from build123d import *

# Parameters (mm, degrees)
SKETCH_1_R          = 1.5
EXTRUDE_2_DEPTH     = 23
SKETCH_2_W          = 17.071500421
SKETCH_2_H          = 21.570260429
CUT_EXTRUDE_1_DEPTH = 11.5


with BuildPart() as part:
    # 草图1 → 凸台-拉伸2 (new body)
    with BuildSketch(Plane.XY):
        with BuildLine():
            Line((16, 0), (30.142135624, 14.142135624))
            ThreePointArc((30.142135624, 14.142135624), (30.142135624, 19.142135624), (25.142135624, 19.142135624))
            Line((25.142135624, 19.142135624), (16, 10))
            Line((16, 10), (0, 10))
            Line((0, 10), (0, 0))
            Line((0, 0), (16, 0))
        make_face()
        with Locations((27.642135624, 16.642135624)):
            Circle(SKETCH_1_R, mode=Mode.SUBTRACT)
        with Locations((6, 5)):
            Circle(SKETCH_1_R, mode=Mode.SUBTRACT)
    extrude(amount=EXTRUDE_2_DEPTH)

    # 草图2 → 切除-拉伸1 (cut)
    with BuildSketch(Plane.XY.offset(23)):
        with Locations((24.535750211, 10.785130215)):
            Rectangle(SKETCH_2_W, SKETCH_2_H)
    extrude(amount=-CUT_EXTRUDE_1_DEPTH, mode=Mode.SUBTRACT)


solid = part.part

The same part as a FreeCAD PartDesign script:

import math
import FreeCAD as App
import Part
import Sketcher
from FreeCAD import Vector
Q = App.Units.Quantity


def add_polygon(sketch, points):
    """Adds a closed chain of lines whose ends are joined by coincident constraints."""
    first, n = sketch.GeometryCount, len(points)
    for a, b in zip(points, points[1:] + points[:1]):
        sketch.addGeometry(Part.LineSegment(App.Vector(*a, 0), App.Vector(*b, 0)), False)
    for i in range(n):
        sketch.addConstraint(Sketcher.Constraint("Coincident", first + i, 2, first + (i + 1) % n, 1))

doc = App.newDocument("Part")
body = doc.addObject("PartDesign::Body", "Body")

sketch1 = doc.addObject("Sketcher::SketchObject", "Sketch")
body.addObject(sketch1)
sketch1.AttachmentSupport = (doc.XY_Plane, [""])
sketch1.MapMode = "FlatFace"
sketch1.addGeometry([
    Part.LineSegment(Vector(16, 0, 0), Vector(30.1, 14.1, 0)),
    Part.ArcOfCircle(Part.Circle(Vector(27.6, 16.6, 0), Vector(0, 0, 1), 3.5), math.radians(-45), math.radians(135)),
    Part.LineSegment(Vector(25.1, 19.1, 0), Vector(16, 10, 0)),
    Part.LineSegment(Vector(16, 10, 0), Vector(0, 10, 0)),
    Part.LineSegment(Vector(0, 10, 0), Vector(0, 0, 0)),
    Part.LineSegment(Vector(0, 0, 0), Vector(16, 0, 0)),
    Part.Circle(Vector(6, 5, 0), Vector(0, 0, 1), 1.5),
    Part.Circle(Vector(27.6, 16.6, 0), Vector(0, 0, 1), 1.5),
], False)
sketch1.addConstraint([
    Sketcher.Constraint("Tangent", 0, 2, 1, 1),
    Sketcher.Constraint("Tangent", 1, 2, 2, 1),
    Sketcher.Constraint("Coincident", 2, 2, 3, 1),
    Sketcher.Constraint("Coincident", 3, 2, 4, 1),
    Sketcher.Constraint("Coincident", 4, 2, 5, 1),
    Sketcher.Constraint("Coincident", 5, 2, 0, 1),
    Sketcher.Constraint("Horizontal", 3),
    Sketcher.Constraint("Vertical", 4),
    Sketcher.Constraint("Horizontal", 5),
    Sketcher.Constraint("Coincident", 4, 2, -1, 1),
    Sketcher.Constraint("Coincident", 7, 3, 1, 3),
    Sketcher.Constraint("Equal", 6, 7),
    Sketcher.Constraint("Parallel", 0, 2),
    Sketcher.Constraint("Vertical", 2, 2, 5, 2),
    Sketcher.Constraint("Diameter", 6, Q("3 mm")),
    Sketcher.Constraint("DistanceX", 3, 2, 3, 1, Q("16 mm")),
    Sketcher.Constraint("DistanceY", 4, 2, 4, 1, Q("10 mm")),
    Sketcher.Constraint("Angle", 0, Q("45 deg")),
    Sketcher.Constraint("Distance", 0, Q("20 mm")),
    Sketcher.Constraint("DistanceX", -1, 1, 6, 3, Q("6 mm")),
    Sketcher.Constraint("DistanceY", -1, 1, 6, 3, Q("5 mm")),
])
pad1 = doc.addObject("PartDesign::Pad", "Pad")
body.addObject(pad1)
pad1.Profile = sketch1
pad1.Length = 23

sketch2 = doc.addObject("Sketcher::SketchObject", "Sketch001")
body.addObject(sketch2)
sketch2.AttachmentSupport = (doc.XY_Plane, [""])
sketch2.MapMode = "FlatFace"
sketch2.AttachmentOffset = App.Placement(Vector(0, 0, 23), App.Rotation())
add_polygon(sketch2, [(16, 22), (16, 0), (33, 0), (33, 22)])
sketch2.addConstraint([
    Sketcher.Constraint("Vertical", 0),
    Sketcher.Constraint("Horizontal", 1),
    Sketcher.Constraint("Vertical", 2),
    Sketcher.Constraint("Horizontal", 3),
    Sketcher.Constraint("PointOnObject", 0, 2, -1),
    Sketcher.Constraint("DistanceX", -1, 1, 0, 2, Q("16 mm")),
    Sketcher.Constraint("DistanceX", 1, 1, 1, 2, Q("17.0715 mm")),
    Sketcher.Constraint("DistanceY", 0, 2, 0, 1, Q("21.57026 mm")),
])
pocket1 = doc.addObject("PartDesign::Pocket", "Pocket")
body.addObject(pocket1)
pocket1.Profile = sketch2
pocket1.Length = 11.5

doc.recompute()
